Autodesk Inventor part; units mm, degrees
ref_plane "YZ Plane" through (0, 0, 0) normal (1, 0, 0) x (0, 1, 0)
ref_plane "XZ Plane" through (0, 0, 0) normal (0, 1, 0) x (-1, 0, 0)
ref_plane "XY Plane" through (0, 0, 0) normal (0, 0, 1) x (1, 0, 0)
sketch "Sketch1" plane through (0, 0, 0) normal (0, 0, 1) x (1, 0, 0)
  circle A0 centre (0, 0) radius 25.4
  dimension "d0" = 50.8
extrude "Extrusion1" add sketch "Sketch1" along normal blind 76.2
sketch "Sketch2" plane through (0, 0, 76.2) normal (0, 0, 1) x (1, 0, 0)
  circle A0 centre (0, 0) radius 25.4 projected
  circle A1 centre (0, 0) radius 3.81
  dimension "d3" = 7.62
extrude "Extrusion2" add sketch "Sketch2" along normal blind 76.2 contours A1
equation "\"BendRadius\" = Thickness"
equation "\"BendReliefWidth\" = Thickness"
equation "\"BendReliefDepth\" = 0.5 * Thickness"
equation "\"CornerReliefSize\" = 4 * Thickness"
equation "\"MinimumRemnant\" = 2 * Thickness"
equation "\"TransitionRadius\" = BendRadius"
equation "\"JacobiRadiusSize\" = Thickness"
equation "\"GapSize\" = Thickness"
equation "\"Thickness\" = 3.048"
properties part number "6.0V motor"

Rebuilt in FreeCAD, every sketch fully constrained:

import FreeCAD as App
import Part
import Sketcher
from FreeCAD import Vector
Q = App.Units.Quantity

doc = App.newDocument("Part")
body = doc.addObject("PartDesign::Body", "Body")

# Sketch on XY plane
sketch1 = body.newObject("Sketcher::SketchObject", "Sketch")
sketch1.AttachmentSupport = (doc.getObject("XY_Plane"), [""])
sketch1.MapMode = "FlatFace"
sketch1.addGeometry(Part.Circle(Vector(0, 0, 0), Vector(0, 0, 1), 25), False)
sketch1.addConstraint([
    Sketcher.Constraint("Coincident", 0, 3, -1, 1),
    Sketcher.Constraint("Diameter", 0, Q("2 in")),
])
pad1 = body.newObject("PartDesign::Pad", "Pad")
pad1.Profile = sketch1
pad1.Length = Q("3 in")

# Sketch on XY plane
sketch2 = body.newObject("Sketcher::SketchObject", "Sketch001")
sketch2.AttachmentSupport = (doc.getObject("XY_Plane"), [""])
sketch2.MapMode = "FlatFace"
sketch2.AttachmentOffset = App.Placement(Vector(0, 0, 3 * 25.4), App.Rotation())
sketch2.addGeometry(Part.Circle(Vector(0, 0, 0), Vector(0, 0, 1), 3.8), False)
sketch2.addConstraint([
    Sketcher.Constraint("Coincident", 0, 3, -1, 1),
    Sketcher.Constraint("Diameter", 0, Q("0.3 in")),
])
pad2 = body.newObject("PartDesign::Pad", "Pad001")
pad2.Profile = sketch2
pad2.Length = Q("3 in")

doc.recompute()
